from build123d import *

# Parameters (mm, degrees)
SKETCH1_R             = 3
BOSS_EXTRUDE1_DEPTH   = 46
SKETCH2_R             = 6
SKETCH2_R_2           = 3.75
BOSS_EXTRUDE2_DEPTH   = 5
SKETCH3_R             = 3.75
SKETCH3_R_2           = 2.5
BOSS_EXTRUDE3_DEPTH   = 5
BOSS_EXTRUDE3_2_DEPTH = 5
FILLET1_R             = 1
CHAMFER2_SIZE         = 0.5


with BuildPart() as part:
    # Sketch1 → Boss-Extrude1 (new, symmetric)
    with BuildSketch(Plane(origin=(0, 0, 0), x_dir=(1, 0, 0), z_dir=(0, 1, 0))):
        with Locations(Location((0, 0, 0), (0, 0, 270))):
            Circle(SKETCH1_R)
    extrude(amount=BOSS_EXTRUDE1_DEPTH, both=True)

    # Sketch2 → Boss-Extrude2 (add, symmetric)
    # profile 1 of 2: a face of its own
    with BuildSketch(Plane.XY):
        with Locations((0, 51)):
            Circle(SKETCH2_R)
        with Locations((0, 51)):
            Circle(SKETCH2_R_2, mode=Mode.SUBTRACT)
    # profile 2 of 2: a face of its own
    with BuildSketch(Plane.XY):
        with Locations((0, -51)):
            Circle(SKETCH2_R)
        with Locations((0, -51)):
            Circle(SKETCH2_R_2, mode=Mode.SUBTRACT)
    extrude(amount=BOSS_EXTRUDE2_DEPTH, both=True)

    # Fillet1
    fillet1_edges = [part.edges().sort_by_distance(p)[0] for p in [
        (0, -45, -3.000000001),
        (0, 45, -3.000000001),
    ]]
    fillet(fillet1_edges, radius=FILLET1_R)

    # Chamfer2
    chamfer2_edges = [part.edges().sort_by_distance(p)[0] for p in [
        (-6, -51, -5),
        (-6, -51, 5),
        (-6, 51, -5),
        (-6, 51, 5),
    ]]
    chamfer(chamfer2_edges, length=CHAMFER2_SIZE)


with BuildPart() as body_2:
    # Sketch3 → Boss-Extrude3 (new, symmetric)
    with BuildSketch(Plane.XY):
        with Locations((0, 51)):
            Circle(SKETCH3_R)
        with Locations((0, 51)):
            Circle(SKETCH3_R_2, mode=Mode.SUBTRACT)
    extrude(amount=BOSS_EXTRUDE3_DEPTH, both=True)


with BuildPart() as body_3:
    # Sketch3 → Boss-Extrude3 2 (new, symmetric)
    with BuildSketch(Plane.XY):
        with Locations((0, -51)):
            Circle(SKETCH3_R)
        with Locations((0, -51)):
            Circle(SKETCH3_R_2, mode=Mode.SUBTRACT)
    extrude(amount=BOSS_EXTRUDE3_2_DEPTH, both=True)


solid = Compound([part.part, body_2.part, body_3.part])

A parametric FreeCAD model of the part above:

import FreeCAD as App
import Part
import Sketcher

V = App.Vector


def edges_at(feature, points):
    """Names of the edges that pass closest to the given points."""
    edges = feature.Shape.Edges
    near = lambda p: min(range(len(edges)), key=lambda i: edges[i].distToShape(Part.Vertex(*p))[0])
    return sorted({f"Edge{near(p) + 1}" for p in points})

doc = App.newDocument("Part")
params = doc.addObject("Spreadsheet::Sheet", "Params")
for row, (alias, value) in enumerate([
    ("sketch1_diameter", "6 mm"),
    ("pad1_length", "92 mm"),
    ("sketch2_diameter", "12 mm"),
    ("sketch2_diameter2", "7.5 mm"),
    ("pad2_length", "10 mm"),
    ("fillet_radius", "1 mm"),
    ("chamfer_size", "0.5 mm"),
    ("sketch3_diameter", "5 mm"),
    ("sketch3_diameter2", "7.5 mm"),
    ("pad3_length", "10 mm"),
    ("sketch4_diameter", "5 mm"),
    ("sketch4_diameter2", "7.5 mm"),
    ("pad4_length", "10 mm"),
], start=1):
    params.set(f"A{row}", alias)
    params.set(f"B{row}", "=" + value)
    params.setAlias(f"B{row}", alias)

body = doc.addObject("PartDesign::Body", "Body")

# Sketch on XZ plane
sketch1 = body.newObject("Sketcher::SketchObject", "Sketch")
sketch1.AttachmentSupport = (doc.getObject("XZ_Plane"), [""])
sketch1.MapMode = "FlatFace"
sketch1.addGeometry(Part.Circle(V(0, 0, 0), V(0, 0, 1), 3), False)
sketch1.addConstraint([
    Sketcher.Constraint("Coincident", 0, 3, -1, 1),
    Sketcher.Constraint("Diameter", 0, 6.0),
])
sketch1.setExpression("Constraints[1]", "Params.sketch1_diameter")
pad1 = body.newObject("PartDesign::Pad", "Pad")
pad1.Profile = sketch1
pad1.setExpression("Length", "Params.pad1_length")
pad1.Midplane = True

# Sketch on XY plane
sketch2 = body.newObject("Sketcher::SketchObject", "Sketch001")
sketch2.AttachmentSupport = (doc.getObject("XY_Plane"), [""])
sketch2.MapMode = "FlatFace"
sketch2.addGeometry([
    Part.Circle(V(0, 51, 0), V(0, 0, 1), 6),
    Part.Circle(V(0, 51, 0), V(0, 0, 1), 3.75),
    Part.Circle(V(0, -51, 0), V(0, 0, 1), 6),
    Part.Circle(V(0, -51, 0), V(0, 0, 1), 3.75),
], False)
sketch2.addConstraint([
    Sketcher.Constraint("Coincident", 1, 3, 0, 3),
    Sketcher.Constraint("Coincident", 3, 3, 2, 3),
    Sketcher.Constraint("Equal", 0, 2),
    Sketcher.Constraint("Equal", 1, 3),
    Sketcher.Constraint("Symmetric", 0, 3, 2, 3, -1, 1),
    Sketcher.Constraint("PointOnObject", 0, 3, -2),
    Sketcher.Constraint("Diameter", 0, 12.0),
    Sketcher.Constraint("Diameter", 1, 7.5),
    Sketcher.Constraint("DistanceY", -1, 1, 0, 3, 51.0),
])
sketch2.setExpression("Constraints[6]", "Params.sketch2_diameter")
sketch2.setExpression("Constraints[7]", "Params.sketch2_diameter2")
pad2 = body.newObject("PartDesign::Pad", "Pad001")
pad2.Profile = sketch2
pad2.setExpression("Length", "Params.pad2_length")
pad2.Midplane = True
doc.recompute()

fillet = body.newObject("PartDesign::Fillet", "Fillet")
fillet.Base = (pad2, edges_at(pad2, [(0, -45, -3), (0, 45, -3)]))
fillet.setExpression("Radius", "Params.fillet_radius")
doc.recompute()

chamfer = body.newObject("PartDesign::Chamfer", "Chamfer")
chamfer.Base = (fillet, edges_at(fillet, [
    (-6, -51, -5),
    (-6, -51, 5),
    (-6, 51, -5),
    (-6, 51, 5),
]))
chamfer.setExpression("Size", "Params.chamfer_size")
body2 = doc.addObject("PartDesign::Body", "Body001")

# Sketch on XY plane
sketch3 = body2.newObject("Sketcher::SketchObject", "Sketch002")
sketch3.AttachmentSupport = (doc.getObject("XY_Plane001"), [""])
sketch3.MapMode = "FlatFace"
sketch3.addGeometry([
    Part.Circle(V(0, 51, 0), V(0, 0, 1), 3.75),
    Part.Circle(V(0, 51, 0), V(0, 0, 1), 2.5),
], False)
sketch3.addConstraint([
    Sketcher.Constraint("Coincident", 1, 3, 0, 3),
    Sketcher.Constraint("PointOnObject", 0, 3, -2),
    Sketcher.Constraint("Diameter", 1, 5.0),
    Sketcher.Constraint("Diameter", 0, 7.5),
    Sketcher.Constraint("DistanceY", -1, 1, 0, 3, 51.0),
])
sketch3.setExpression("Constraints[2]", "Params.sketch3_diameter")
sketch3.setExpression("Constraints[3]", "Params.sketch3_diameter2")
pad3 = body2.newObject("PartDesign::Pad", "Pad002")
pad3.Profile = sketch3
pad3.setExpression("Length", "Params.pad3_length")
pad3.Midplane = True
body3 = doc.addObject("PartDesign::Body", "Body002")

# Sketch on XY plane
sketch4 = body3.newObject("Sketcher::SketchObject", "Sketch003")
sketch4.AttachmentSupport = (doc.getObject("XY_Plane002"), [""])
sketch4.MapMode = "FlatFace"
sketch4.addGeometry([
    Part.Circle(V(0, -51, 0), V(0, 0, 1), 3.75),
    Part.Circle(V(0, -51, 0), V(0, 0, 1), 2.5),
], False)
sketch4.addConstraint([
    Sketcher.Constraint("Coincident", 1, 3, 0, 3),
    Sketcher.Constraint("PointOnObject", 0, 3, -2),
    Sketcher.Constraint("Diameter", 1, 5.0),
    Sketcher.Constraint("Diameter", 0, 7.5),
    Sketcher.Constraint("DistanceY", 0, 3, -1, 1, 51.0),
])
sketch4.setExpression("Constraints[2]", "Params.sketch4_diameter")
sketch4.setExpression("Constraints[3]", "Params.sketch4_diameter2")
pad4 = body3.newObject("PartDesign::Pad", "Pad003")
pad4.Profile = sketch4
pad4.setExpression("Length", "Params.pad4_length")
pad4.Midplane = True

doc.recompute()
